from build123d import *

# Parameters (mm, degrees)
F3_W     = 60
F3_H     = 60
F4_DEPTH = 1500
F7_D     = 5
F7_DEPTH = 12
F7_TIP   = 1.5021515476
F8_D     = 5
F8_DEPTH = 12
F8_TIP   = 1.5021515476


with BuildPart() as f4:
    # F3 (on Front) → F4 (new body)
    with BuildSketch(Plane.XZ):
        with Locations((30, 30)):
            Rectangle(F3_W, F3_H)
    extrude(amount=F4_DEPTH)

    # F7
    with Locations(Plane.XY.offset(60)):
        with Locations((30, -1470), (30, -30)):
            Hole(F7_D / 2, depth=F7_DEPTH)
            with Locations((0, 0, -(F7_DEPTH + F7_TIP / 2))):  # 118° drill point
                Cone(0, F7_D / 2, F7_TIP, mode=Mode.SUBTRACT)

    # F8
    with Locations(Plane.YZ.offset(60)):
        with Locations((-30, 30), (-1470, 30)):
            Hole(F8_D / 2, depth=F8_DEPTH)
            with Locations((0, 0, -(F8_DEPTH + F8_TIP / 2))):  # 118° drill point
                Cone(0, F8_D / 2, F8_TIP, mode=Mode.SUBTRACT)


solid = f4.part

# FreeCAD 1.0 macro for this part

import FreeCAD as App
import Part
import Sketcher

V = App.Vector


def add_polygon(sketch, points):
    """Adds a closed chain of lines whose ends are joined by coincident constraints."""
    first, n = sketch.GeometryCount, len(points)
    for a, b in zip(points, points[1:] + points[:1]):
        sketch.addGeometry(Part.LineSegment(App.Vector(*a, 0), App.Vector(*b, 0)), False)
    for i in range(n):
        sketch.addConstraint(Sketcher.Constraint("Coincident", first + i, 2, first + (i + 1) % n, 1))

doc = App.newDocument("Part")
body = doc.addObject("PartDesign::Body", "Body")

sketch1 = body.newObject("Sketcher::SketchObject", "Sketch")
sketch1.AttachmentSupport = (doc.getObject("XZ_Plane"), [""])
sketch1.MapMode = "FlatFace"
add_polygon(sketch1, [(0, 60), (0, 0), (60, 0), (60, 60)])
sketch1.addConstraint(Sketcher.Constraint("Vertical", 0))
sketch1.addConstraint(Sketcher.Constraint("Horizontal", 1))
sketch1.addConstraint(Sketcher.Constraint("Vertical", 2))
sketch1.addConstraint(Sketcher.Constraint("Horizontal", 3))
sketch1.addConstraint(Sketcher.Constraint("Coincident", 0, 2, -1, 1))
sketch1.addConstraint(Sketcher.Constraint("Equal", 3, 0))
sketch1.addConstraint(Sketcher.Constraint("DistanceX", 1, 1, 1, 2, 60.0))
pad1 = body.newObject("PartDesign::Pad", "Pad")
pad1.Profile = sketch1
pad1.Length = 1500

sketch2 = body.newObject("Sketcher::SketchObject", "Sketch001")
sketch2.AttachmentSupport = (doc.getObject("XY_Plane"), [""])
sketch2.MapMode = "FlatFace"
sketch2.AttachmentOffset = App.Placement(V(0, 0, 60), App.Rotation())
sketch2.addGeometry(Part.Circle(V(30, -1470, 0), V(0, 0, 1), 2.5), False)
sketch2.addGeometry(Part.Circle(V(30, -30, 0), V(0, 0, 1), 2.5), False)
sketch2.addConstraint(Sketcher.Constraint("Equal", 0, 1))
sketch2.addConstraint(Sketcher.Constraint("Vertical", 0, 3, 1, 3))
sketch2.addConstraint(Sketcher.Constraint("Diameter", 0, 5.0))
sketch2.addConstraint(Sketcher.Constraint("DistanceX", -1, 1, 0, 3, 30.0))
sketch2.addConstraint(Sketcher.Constraint("DistanceY", 0, 3, -1, 1, 1470.0))
sketch2.addConstraint(Sketcher.Constraint("DistanceY", 1, 3, -1, 1, 30.0))
doc.recompute()
hole = body.newObject("PartDesign::Hole", "Hole")
hole.Profile = sketch2
hole.ThreadType = "None"
hole.Diameter = 5
hole.DepthType = "Dimension"
hole.Depth = 12
hole.DrillPoint = "Angled"
hole.DrillPointAngle = 118

sketch3 = body.newObject("Sketcher::SketchObject", "Sketch002")
sketch3.AttachmentSupport = (doc.getObject("YZ_Plane"), [""])
sketch3.MapMode = "FlatFace"
sketch3.AttachmentOffset = App.Placement(V(0, 0, 60), App.Rotation())
sketch3.addGeometry(Part.Circle(V(-30, 30, 0), V(0, 0, 1), 2.5), False)
sketch3.addGeometry(Part.Circle(V(-1470, 30, 0), V(0, 0, 1), 2.5), False)
sketch3.addConstraint(Sketcher.Constraint("Equal", 0, 1))
sketch3.addConstraint(Sketcher.Constraint("Horizontal", 0, 3, 1, 3))
sketch3.addConstraint(Sketcher.Constraint("Diameter", 0, 5.0))
sketch3.addConstraint(Sketcher.Constraint("DistanceX", 0, 3, -1, 1, 30.0))
sketch3.addConstraint(Sketcher.Constraint("DistanceY", -1, 1, 0, 3, 30.0))
sketch3.addConstraint(Sketcher.Constraint("DistanceX", 1, 3, -1, 1, 1470.0))
doc.recompute()
hole2 = body.newObject("PartDesign::Hole", "Hole001")
hole2.Profile = sketch3
hole2.ThreadType = "None"
hole2.Diameter = 5
hole2.DepthType = "Dimension"
hole2.Depth = 12
hole2.DrillPoint = "Angled"
hole2.DrillPointAngle = 118

doc.recompute()
